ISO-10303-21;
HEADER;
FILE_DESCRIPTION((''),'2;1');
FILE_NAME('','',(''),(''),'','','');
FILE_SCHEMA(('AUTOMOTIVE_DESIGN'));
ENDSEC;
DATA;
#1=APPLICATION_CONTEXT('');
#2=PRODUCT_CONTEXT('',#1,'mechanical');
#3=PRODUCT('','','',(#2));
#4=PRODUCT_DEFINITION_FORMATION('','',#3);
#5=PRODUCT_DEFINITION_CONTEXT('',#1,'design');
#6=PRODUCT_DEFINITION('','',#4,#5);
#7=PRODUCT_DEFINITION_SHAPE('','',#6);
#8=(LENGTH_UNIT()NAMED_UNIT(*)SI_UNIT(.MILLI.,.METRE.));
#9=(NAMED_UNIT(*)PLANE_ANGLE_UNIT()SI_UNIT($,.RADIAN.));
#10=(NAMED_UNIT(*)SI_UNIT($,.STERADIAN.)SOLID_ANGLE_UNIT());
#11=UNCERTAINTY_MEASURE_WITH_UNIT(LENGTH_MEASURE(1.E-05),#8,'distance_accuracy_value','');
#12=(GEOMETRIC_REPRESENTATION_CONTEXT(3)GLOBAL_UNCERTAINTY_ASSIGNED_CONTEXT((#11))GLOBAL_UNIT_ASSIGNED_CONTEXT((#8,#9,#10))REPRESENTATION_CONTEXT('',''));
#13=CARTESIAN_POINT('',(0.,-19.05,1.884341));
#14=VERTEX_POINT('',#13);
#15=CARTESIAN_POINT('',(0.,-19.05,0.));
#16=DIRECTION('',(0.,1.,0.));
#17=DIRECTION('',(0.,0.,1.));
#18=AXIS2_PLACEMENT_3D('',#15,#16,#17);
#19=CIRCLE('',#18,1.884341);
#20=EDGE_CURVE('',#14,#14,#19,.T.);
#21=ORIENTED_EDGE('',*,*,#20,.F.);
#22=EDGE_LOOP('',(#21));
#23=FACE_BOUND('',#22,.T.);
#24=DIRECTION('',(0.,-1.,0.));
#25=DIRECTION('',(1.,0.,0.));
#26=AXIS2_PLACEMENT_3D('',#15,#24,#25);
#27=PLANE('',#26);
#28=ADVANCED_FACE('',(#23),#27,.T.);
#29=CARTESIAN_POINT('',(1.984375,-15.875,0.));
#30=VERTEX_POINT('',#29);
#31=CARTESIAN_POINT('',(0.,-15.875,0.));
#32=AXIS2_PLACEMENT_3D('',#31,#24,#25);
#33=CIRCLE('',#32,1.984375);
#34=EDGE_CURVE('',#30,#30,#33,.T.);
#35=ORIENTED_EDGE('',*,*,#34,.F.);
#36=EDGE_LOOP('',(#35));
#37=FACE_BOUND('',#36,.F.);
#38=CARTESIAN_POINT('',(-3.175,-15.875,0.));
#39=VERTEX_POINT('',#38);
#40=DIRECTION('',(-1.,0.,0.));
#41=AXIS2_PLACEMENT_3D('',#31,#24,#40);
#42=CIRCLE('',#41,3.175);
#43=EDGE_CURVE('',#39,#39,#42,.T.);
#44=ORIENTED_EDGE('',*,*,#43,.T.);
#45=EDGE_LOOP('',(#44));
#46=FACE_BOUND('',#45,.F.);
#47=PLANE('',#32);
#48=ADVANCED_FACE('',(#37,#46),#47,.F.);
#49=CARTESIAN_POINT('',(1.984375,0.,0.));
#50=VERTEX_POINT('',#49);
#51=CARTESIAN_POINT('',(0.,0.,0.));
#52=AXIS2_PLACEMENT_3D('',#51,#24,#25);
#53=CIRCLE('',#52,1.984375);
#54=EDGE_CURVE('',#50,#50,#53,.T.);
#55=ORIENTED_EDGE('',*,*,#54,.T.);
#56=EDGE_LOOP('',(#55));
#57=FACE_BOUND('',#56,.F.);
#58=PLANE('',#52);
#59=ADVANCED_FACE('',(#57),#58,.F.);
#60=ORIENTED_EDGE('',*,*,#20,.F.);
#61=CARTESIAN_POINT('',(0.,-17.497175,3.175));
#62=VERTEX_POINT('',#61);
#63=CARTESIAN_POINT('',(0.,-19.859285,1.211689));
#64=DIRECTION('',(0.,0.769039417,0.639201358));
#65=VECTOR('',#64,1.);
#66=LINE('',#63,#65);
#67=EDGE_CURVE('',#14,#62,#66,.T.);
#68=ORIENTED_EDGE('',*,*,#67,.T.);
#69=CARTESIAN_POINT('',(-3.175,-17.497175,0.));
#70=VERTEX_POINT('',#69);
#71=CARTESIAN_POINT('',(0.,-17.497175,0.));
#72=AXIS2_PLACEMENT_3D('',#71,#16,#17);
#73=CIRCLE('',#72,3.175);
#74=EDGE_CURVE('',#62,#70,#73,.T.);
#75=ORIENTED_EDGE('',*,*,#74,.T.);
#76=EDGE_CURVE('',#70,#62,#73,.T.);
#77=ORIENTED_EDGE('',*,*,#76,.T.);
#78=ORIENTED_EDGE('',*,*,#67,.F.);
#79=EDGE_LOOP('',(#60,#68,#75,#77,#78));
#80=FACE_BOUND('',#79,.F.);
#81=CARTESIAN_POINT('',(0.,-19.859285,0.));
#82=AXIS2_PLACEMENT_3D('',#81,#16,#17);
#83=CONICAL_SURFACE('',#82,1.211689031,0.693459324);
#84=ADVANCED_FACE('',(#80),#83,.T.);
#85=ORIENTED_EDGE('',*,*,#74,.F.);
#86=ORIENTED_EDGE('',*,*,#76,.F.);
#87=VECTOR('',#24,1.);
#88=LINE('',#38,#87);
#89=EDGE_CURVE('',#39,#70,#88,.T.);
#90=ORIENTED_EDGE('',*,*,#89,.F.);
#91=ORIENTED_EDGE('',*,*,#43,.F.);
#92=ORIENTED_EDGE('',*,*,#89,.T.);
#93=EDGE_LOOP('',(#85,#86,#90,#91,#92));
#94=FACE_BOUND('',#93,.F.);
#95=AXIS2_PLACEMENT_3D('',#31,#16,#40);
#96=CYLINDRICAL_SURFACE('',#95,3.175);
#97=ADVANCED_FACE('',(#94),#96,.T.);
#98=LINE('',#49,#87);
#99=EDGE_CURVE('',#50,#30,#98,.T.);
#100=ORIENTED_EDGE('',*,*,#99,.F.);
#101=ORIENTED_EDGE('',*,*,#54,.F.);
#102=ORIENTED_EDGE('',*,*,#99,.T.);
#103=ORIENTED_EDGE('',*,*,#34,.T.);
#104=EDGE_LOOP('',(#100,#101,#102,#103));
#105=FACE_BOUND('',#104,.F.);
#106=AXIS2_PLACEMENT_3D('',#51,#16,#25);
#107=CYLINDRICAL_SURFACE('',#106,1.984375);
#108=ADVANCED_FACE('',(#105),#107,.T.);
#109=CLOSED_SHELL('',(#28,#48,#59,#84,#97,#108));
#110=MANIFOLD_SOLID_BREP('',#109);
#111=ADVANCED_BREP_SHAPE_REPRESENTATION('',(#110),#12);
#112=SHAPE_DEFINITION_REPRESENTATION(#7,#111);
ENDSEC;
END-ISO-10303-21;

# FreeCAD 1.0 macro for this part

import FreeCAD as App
import Part
import Sketcher
Q = App.Units.Quantity

doc = App.newDocument("Part")
params = doc.addObject("Spreadsheet::Sheet", "Params")
for row, (alias, value) in enumerate([
    ("sketch1_diameter", "0.15625 in"),
    ("pad1_length", "0.625 in"),
    ("sketch2_diameter", "0.25 in"),
    ("pad2_length", "0.125 in"),
    ("sketch3_length", "0.125 in"),
    ("groove_angle", "360 deg"),
], start=1):
    params.set(f"A{row}", alias)
    params.set(f"B{row}", "=" + value)
    params.setAlias(f"B{row}", alias)

body = doc.addObject("PartDesign::Body", "Body")

# Sketch on XZ plane
sketch1 = doc.addObject("Sketcher::SketchObject", "Sketch")
body.addObject(sketch1)
sketch1.AttachmentSupport = (doc.XZ_Plane, [""])
sketch1.MapMode = "FlatFace"
sketch1.addGeometry(Part.Circle(App.Vector(0, 0, 0), App.Vector(0, 0, 1), 1.984375), False)
sketch1.addConstraint([
    Sketcher.Constraint("Coincident", 0, 3, -1, 1),
    Sketcher.Constraint("Diameter", 0, Q("0.15625 in")),
])
sketch1.setExpression("Constraints[1]", "Params.sketch1_diameter")
pad1 = doc.addObject("PartDesign::Pad", "Pad")
body.addObject(pad1)
pad1.Profile = sketch1
pad1.setExpression("Length", "Params.pad1_length")

# Sketch on XZ plane
sketch2 = doc.addObject("Sketcher::SketchObject", "Sketch001")
body.addObject(sketch2)
sketch2.AttachmentSupport = (doc.XZ_Plane, [""])
sketch2.MapMode = "FlatFace"
sketch2.AttachmentOffset = App.Placement(App.Vector(0, 0, 0.625 * 25.4), App.Rotation())
sketch2.addGeometry(Part.Circle(App.Vector(0, 0, 0), App.Vector(0, 0, 1), 3.175), False)
sketch2.addConstraint([
    Sketcher.Constraint("Coincident", 0, 3, -1, 1),
    Sketcher.Constraint("Diameter", 0, Q("0.25 in")),
])
sketch2.setExpression("Constraints[1]", "Params.sketch2_diameter")
pad2 = doc.addObject("PartDesign::Pad", "Pad001")
body.addObject(pad2)
pad2.Profile = sketch2
pad2.setExpression("Length", "Params.pad2_length")

# Sketch on YZ plane
sketch3 = doc.addObject("Sketcher::SketchObject", "Sketch002")
body.addObject(sketch3)
sketch3.AttachmentSupport = (doc.YZ_Plane, [""])
sketch3.MapMode = "FlatFace"
sketch3.addGeometry([
    Part.LineSegment(App.Vector(-19.859285, 1.211689, 0), App.Vector(-16.684552, 3.850427, 0)),
    Part.LineSegment(App.Vector(-16.684552, 3.850427, 0), App.Vector(-19.859285, 3.809196, 0)),
    Part.LineSegment(App.Vector(-19.859285, 3.809196, 0), App.Vector(-19.859285, 1.211689, 0)),
], False)
sketch3.addConstraint([
    Sketcher.Constraint("Coincident", 0, 2, 1, 1),
    Sketcher.Constraint("Coincident", 1, 2, 2, 1),
    Sketcher.Constraint("Coincident", 2, 2, 0, 1),
    Sketcher.Constraint("Vertical", 2),
    Sketcher.Constraint("Distance", 1, Q("0.125 in")),
    Sketcher.Constraint("Distance", 0, Q("4.128179 mm")),
    Sketcher.Constraint("DistanceY", 2, 2, 2, 1, Q("2.597507 mm")),
    Sketcher.Constraint("DistanceY", -1, 1, 2, 2, Q("1.211689 mm")),
    Sketcher.Constraint("DistanceX", 0, 2, -1, 1, Q("16.684552 mm")),
])
sketch3.setExpression("Constraints[4]", "Params.sketch3_length")
groove = doc.addObject("PartDesign::Groove", "Groove")
body.addObject(groove)
groove.Profile = sketch3
groove.ReferenceAxis = (sketch3, ["H_Axis"])
groove.setExpression("Angle", "Params.groove_angle")

doc.recompute()
